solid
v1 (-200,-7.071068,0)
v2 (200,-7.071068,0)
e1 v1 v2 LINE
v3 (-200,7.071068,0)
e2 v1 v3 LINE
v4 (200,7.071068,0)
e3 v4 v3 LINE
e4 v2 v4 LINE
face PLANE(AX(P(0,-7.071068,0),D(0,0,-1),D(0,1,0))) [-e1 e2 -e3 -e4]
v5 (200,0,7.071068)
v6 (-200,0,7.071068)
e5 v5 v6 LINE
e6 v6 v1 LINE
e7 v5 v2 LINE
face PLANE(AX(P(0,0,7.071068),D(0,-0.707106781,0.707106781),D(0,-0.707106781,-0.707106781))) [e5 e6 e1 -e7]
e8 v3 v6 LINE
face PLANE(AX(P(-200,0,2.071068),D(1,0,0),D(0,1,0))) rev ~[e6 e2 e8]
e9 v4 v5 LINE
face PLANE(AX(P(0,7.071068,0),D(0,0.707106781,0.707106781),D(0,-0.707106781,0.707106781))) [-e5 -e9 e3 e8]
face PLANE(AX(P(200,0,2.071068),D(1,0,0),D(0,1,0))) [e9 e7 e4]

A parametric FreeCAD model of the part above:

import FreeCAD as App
import Part
import Sketcher

V = App.Vector
Q = App.Units.Quantity


def add_polygon(sketch, points):
    """Adds a closed chain of lines whose ends are joined by coincident constraints."""
    first, n = sketch.GeometryCount, len(points)
    for a, b in zip(points, points[1:] + points[:1]):
        sketch.addGeometry(Part.LineSegment(App.Vector(*a, 0), App.Vector(*b, 0)), False)
    for i in range(n):
        sketch.addConstraint(Sketcher.Constraint("Coincident", first + i, 2, first + (i + 1) % n, 1))

doc = App.newDocument("Part")
body = doc.addObject("PartDesign::Body", "Body")

sketch1 = doc.addObject("Sketcher::SketchObject", "Sketch")
body.addObject(sketch1)
sketch1.AttachmentSupport = (doc.YZ_Plane, [""])
sketch1.MapMode = "FlatFace"
add_polygon(sketch1, [(0, 7), (-7, 0), (7, 0)])
sketch1.addConstraint([
    Sketcher.Constraint("Horizontal", 1),
    Sketcher.Constraint("Symmetric", 0, 2, 1, 2, -1, 1),
    Sketcher.Constraint("PointOnObject", 2, 2, -2),
    Sketcher.Constraint("Perpendicular", 0, 2),
    Sketcher.Constraint("Distance", 0, Q("10 mm")),
])
pad1 = doc.addObject("PartDesign::Pad", "Pad")
body.addObject(pad1)
pad1.Profile = sketch1
pad1.Length = 400
pad1.Midplane = True

doc.recompute()
